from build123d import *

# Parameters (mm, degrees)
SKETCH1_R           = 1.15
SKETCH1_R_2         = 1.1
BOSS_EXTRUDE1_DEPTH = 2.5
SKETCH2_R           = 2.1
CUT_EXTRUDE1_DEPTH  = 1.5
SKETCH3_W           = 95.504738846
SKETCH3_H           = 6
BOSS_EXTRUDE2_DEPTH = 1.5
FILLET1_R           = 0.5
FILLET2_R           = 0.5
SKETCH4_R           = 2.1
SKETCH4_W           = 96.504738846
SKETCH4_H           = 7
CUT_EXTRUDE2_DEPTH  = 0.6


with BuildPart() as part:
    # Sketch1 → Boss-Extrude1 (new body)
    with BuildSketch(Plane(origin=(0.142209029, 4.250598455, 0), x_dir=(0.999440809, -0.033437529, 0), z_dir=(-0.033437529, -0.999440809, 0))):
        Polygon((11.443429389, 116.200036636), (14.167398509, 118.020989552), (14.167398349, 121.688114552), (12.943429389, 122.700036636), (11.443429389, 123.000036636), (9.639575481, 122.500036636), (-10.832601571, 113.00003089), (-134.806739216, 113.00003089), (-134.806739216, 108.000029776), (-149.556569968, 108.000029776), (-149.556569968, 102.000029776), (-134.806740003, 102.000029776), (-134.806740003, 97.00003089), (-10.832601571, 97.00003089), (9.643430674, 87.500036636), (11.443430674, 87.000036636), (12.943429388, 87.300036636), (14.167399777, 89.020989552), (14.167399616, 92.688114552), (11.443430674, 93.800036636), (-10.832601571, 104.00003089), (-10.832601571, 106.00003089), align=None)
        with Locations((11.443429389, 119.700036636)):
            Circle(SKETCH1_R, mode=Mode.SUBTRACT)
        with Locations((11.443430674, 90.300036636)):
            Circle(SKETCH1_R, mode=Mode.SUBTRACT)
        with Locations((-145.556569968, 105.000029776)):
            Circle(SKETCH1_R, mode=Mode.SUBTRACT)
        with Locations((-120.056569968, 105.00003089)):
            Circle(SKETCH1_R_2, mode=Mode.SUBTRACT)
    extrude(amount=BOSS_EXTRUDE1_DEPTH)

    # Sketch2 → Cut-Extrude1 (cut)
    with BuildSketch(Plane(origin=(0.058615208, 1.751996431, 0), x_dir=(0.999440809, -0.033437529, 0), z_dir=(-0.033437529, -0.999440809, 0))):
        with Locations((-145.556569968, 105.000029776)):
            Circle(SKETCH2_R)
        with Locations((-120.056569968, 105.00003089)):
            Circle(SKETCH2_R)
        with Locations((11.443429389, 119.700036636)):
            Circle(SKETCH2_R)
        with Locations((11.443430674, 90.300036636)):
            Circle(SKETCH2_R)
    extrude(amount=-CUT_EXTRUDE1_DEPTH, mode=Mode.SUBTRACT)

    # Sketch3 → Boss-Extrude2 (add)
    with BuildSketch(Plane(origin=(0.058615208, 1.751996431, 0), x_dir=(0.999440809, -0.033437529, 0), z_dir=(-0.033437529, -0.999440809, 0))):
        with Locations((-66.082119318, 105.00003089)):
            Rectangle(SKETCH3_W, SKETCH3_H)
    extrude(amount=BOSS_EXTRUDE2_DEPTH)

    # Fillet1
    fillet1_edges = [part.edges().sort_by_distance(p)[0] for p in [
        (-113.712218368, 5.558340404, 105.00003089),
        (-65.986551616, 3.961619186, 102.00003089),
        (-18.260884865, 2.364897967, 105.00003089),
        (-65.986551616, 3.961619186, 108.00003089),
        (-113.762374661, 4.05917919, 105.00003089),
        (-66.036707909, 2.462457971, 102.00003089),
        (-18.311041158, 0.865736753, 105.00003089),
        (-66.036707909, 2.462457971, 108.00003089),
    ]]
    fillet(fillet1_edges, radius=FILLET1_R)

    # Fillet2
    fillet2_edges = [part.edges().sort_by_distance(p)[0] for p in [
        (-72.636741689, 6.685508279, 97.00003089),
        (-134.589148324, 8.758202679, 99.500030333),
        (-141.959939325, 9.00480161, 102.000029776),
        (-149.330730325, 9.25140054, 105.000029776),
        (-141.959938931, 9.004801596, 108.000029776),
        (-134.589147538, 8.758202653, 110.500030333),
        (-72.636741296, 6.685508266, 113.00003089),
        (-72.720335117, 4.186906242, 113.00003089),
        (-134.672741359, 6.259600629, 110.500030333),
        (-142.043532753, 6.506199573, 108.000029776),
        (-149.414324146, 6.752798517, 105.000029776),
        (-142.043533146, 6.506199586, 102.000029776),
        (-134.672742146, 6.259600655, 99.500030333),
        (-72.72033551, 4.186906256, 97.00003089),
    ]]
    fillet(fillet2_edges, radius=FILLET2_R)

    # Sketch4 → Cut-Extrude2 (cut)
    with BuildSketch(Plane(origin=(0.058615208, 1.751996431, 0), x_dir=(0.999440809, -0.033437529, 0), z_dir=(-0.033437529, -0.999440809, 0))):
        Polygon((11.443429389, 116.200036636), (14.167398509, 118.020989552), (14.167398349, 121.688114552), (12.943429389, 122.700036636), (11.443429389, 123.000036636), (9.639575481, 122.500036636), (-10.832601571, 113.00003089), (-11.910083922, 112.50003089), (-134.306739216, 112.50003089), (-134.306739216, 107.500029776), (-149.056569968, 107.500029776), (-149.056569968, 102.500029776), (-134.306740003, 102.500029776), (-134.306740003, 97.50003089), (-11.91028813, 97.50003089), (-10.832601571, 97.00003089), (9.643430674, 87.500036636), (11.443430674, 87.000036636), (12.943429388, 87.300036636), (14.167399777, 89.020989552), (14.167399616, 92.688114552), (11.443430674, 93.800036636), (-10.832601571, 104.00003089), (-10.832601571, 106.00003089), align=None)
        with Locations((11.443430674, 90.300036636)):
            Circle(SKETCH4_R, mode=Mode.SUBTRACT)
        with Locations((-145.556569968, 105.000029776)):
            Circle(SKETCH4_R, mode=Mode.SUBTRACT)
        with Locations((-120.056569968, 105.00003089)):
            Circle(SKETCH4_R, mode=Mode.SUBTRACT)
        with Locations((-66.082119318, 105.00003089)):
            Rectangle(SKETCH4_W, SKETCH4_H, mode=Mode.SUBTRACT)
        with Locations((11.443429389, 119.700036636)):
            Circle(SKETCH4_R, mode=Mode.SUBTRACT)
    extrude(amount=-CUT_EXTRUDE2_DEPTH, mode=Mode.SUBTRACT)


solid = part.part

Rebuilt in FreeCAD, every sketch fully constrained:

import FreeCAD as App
import Part
import Sketcher

V = App.Vector


def edges_at(feature, points):
    """Names of the edges that pass closest to the given points."""
    edges = feature.Shape.Edges
    near = lambda p: min(range(len(edges)), key=lambda i: edges[i].distToShape(Part.Vertex(*p))[0])
    return sorted({f"Edge{near(p) + 1}" for p in points})

doc = App.newDocument("Part")
params = doc.addObject("Spreadsheet::Sheet", "Params")
for row, (alias, value) in enumerate([
    ("sketch1_diameter", "2.3 mm"),
    ("sketch1_diameter2", "2.2 mm"),
    ("sketch1_height", "5.000001 mm"),
    ("sketch1_height2", "6 mm"),
    ("sketch1_height3", "4.999999 mm"),
    ("pad1_length", "2.5 mm"),
    ("sketch2_diameter", "4.2 mm"),
    ("pocket1_length", "1.5 mm"),
    ("sketch3_height", "6 mm"),
    ("pad2_length", "1.5 mm"),
    ("fillet_radius", "0.5 mm"),
    ("fillet2_radius", "0.5 mm"),
    ("sketch4_diameter", "4.2 mm"),
    ("sketch4_height", "5.000001 mm"),
    ("sketch4_height2", "2 mm"),
    ("sketch4_height3", "7 mm"),
    ("pocket2_length", "0.6 mm"),
], start=1):
    params.set(f"A{row}", alias)
    params.set(f"B{row}", "=" + value)
    params.setAlias(f"B{row}", alias)

body = doc.addObject("PartDesign::Body", "Body")

# Sketch on an angled plane
sketch1 = body.newObject("Sketcher::SketchObject", "Sketch")
sketch1.Placement = App.Placement(V(0.142209, 4.250598, 0), App.Rotation(V(0.999440809, -0.033437529, 0), V(0, 0, 0.999999999), V(-0.033437529, -0.999440809, 0), "ZXY"))
sketch1.addGeometry([
    Part.LineSegment(V(11.4, 116.2, 0), V(14.2, 118, 0)),  # 0
    Part.LineSegment(V(14.2, 118, 0), V(14.2, 121.7, 0)),  # 1
    Part.LineSegment(V(14.2, 121.7, 0), V(12.9, 122.7, 0)),  # 2
    Part.LineSegment(V(12.9, 122.7, 0), V(11.4, 123, 0)),  # 3
    Part.LineSegment(V(11.4, 123, 0), V(9.6, 122.5, 0)),  # 4
    Part.LineSegment(V(9.6, 122.5, 0), V(-10.8, 113, 0)),  # 5
    Part.LineSegment(V(-10.8, 113, 0), V(-134.8, 113, 0)),  # 6
    Part.LineSegment(V(-134.8, 113, 0), V(-134.8, 108, 0)),  # 7
    Part.LineSegment(V(-134.8, 108, 0), V(-149.6, 108, 0)),  # 8
    Part.LineSegment(V(-149.6, 108, 0), V(-149.6, 102, 0)),  # 9
    Part.LineSegment(V(-149.6, 102, 0), V(-134.8, 102, 0)),  # 10
    Part.LineSegment(V(-134.8, 102, 0), V(-134.8, 97, 0)),  # 11
    Part.LineSegment(V(-134.8, 97, 0), V(-10.8, 97, 0)),  # 12
    Part.LineSegment(V(-10.8, 97, 0), V(9.6, 87.5, 0)),  # 13
    Part.LineSegment(V(9.6, 87.5, 0), V(11.4, 87, 0)),  # 14
    Part.LineSegment(V(11.4, 87, 0), V(12.9, 87.3, 0)),  # 15
    Part.LineSegment(V(12.9, 87.3, 0), V(14.2, 89, 0)),  # 16
    Part.LineSegment(V(14.2, 89, 0), V(14.2, 92.7, 0)),  # 17
    Part.LineSegment(V(14.2, 92.7, 0), V(11.4, 93.8, 0)),  # 18
    Part.LineSegment(V(11.4, 93.8, 0), V(-10.8, 104, 0)),  # 19
    Part.LineSegment(V(-10.8, 104, 0), V(-10.8, 106, 0)),  # 20
    Part.LineSegment(V(-10.8, 106, 0), V(11.4, 116.2, 0)),  # 21
    Part.Circle(V(-145.6, 105, 0), V(0, 0, 1), 1.1),  # 22
    Part.Circle(V(-120.1, 105, 0), V(0, 0, 1), 1.1),  # 23
    Part.Circle(V(11.4, 90.3, 0), V(0, 0, 1), 1.1),  # 24
    Part.Circle(V(11.4, 119.7, 0), V(0, 0, 1), 1.1),  # 25
], False)
sketch1.addConstraint([
    Sketcher.Constraint("Coincident", 0, 2, 1, 1),
    Sketcher.Constraint("Coincident", 1, 2, 2, 1),
    Sketcher.Constraint("Coincident", 2, 2, 3, 1),
    Sketcher.Constraint("Coincident", 3, 2, 4, 1),
    Sketcher.Constraint("Coincident", 4, 2, 5, 1),
    Sketcher.Constraint("Coincident", 5, 2, 6, 1),
    Sketcher.Constraint("Coincident", 6, 2, 7, 1),
    Sketcher.Constraint("Coincident", 7, 2, 8, 1),
    Sketcher.Constraint("Coincident", 8, 2, 9, 1),
    Sketcher.Constraint("Coincident", 9, 2, 10, 1),
    Sketcher.Constraint("Coincident", 10, 2, 11, 1),
    Sketcher.Constraint("Coincident", 11, 2, 12, 1),
    Sketcher.Constraint("Coincident", 12, 2, 13, 1),
    Sketcher.Constraint("Coincident", 13, 2, 14, 1),
    Sketcher.Constraint("Coincident", 14, 2, 15, 1),
    Sketcher.Constraint("Coincident", 15, 2, 16, 1),
    Sketcher.Constraint("Coincident", 16, 2, 17, 1),
    Sketcher.Constraint("Coincident", 17, 2, 18, 1),
    Sketcher.Constraint("Coincident", 18, 2, 19, 1),
    Sketcher.Constraint("Coincident", 19, 2, 20, 1),
    Sketcher.Constraint("Coincident", 20, 2, 21, 1),
    Sketcher.Constraint("Coincident", 21, 2, 0, 1),
    Sketcher.Constraint("Vertical", 1),
    Sketcher.Constraint("Horizontal", 6),
    Sketcher.Constraint("Vertical", 7),
    Sketcher.Constraint("Horizontal", 8),
    Sketcher.Constraint("Vertical", 9),
    Sketcher.Constraint("Horizontal", 10),
    Sketcher.Constraint("Vertical", 11),
    Sketcher.Constraint("Horizontal", 12),
    Sketcher.Constraint("Vertical", 17),
    Sketcher.Constraint("Vertical", 20),
    Sketcher.Constraint("Equal", 22, 24),
    Sketcher.Constraint("Equal", 24, 25),
    Sketcher.Constraint("Horizontal", 22, 3, 23, 3),
    Sketcher.Constraint("Vertical", 24, 3, 25, 3),
    Sketcher.Constraint("Vertical", 25, 3, 3, 2),
    Sketcher.Constraint("Vertical", 7, 2, 10, 2),
    Sketcher.Constraint("Vertical", 5, 2, 12, 2),
    Sketcher.Constraint("Vertical", 3, 2, 14, 2),
    Sketcher.Constraint("Vertical", 2, 2, 15, 2),
    Sketcher.Constraint("Vertical", 1, 2, 16, 2),
    Sketcher.Constraint("Vertical", 14, 2, 18, 2),
    Sketcher.Constraint("Vertical", 12, 2, 19, 2),
    Sketcher.Constraint("Vertical", 18, 2, 21, 2),
    Sketcher.Constraint("Equal", 1, 17),
    Sketcher.Constraint("Equal", 3, 15),
    Sketcher.Constraint("Diameter", 22, 2.3),
    Sketcher.Constraint("Diameter", 23, 2.2),
    Sketcher.Constraint("DistanceY", 7, 2, 7, 1, 5.000001),
    Sketcher.Constraint("DistanceY", 9, 2, 9, 1, 6.0),
    Sketcher.Constraint("DistanceY", 11, 2, 11, 1, 4.999999),
    Sketcher.Constraint("DistanceY", 20, 1, 20, 2, 2.0),
    Sketcher.Constraint("DistanceX", 22, 3, 24, 3, 157.0),
    Sketcher.Constraint("DistanceY", 25, 3, 2, 2, 3.0),
    Sketcher.Constraint("DistanceX", 23, 3, 2, 2, 132.999999),
    Sketcher.Constraint("DistanceX", 5, 2, 0, 2, 25.0),
    Sketcher.Constraint("DistanceY", 22, 3, 6, 2, 8.000001),
    Sketcher.Constraint("DistanceX", 8, 2, 22, 3, 4.0),
    Sketcher.Constraint("DistanceY", 15, 2, 24, 3, 3.0),
    Sketcher.Constraint("DistanceY", 12, 2, 19, 2, 7.0),
    Sketcher.Constraint("DistanceX", 22, 3, 23, 3, 25.5),
    Sketcher.Constraint("DistanceY", 24, 3, 25, 3, 29.4),
    Sketcher.Constraint("DistanceY", 2, 2, 3, 2, 0.3),
    Sketcher.Constraint("DistanceY", 4, 2, 3, 2, 0.5),
    Sketcher.Constraint("DistanceX", 13, 2, 24, 3, 1.8),
    Sketcher.Constraint("DistanceY", 13, 2, 24, 3, 2.8),
    Sketcher.Constraint("DistanceY", 24, 3, 18, 2, 3.5),
    Sketcher.Constraint("DistanceY", 21, 2, 25, 3, 3.5),
    Sketcher.Constraint("Distance", 13, 22.572501),
    Sketcher.Constraint("DistanceX", 8, 2, 8, 1, 14.749831),
    Sketcher.Constraint("DistanceX", 12, 1, 12, 2, 123.974138),
    Sketcher.Constraint("DistanceX", -1, 1, 0, 2, 14.167398),
    Sketcher.Constraint("Distance", 5, 22.569008),
    Sketcher.Constraint("Distance", 16, 2.11182),
    Sketcher.Constraint("DistanceY", 1, 1, 1, 2, 3.667125),
    Sketcher.Constraint("DistanceY", -1, 1, 22, 3, 105.00003),
    Sketcher.Constraint("DistanceY", -1, 1, 0, 2, 118.020989),
])
sketch1.setExpression("Constraints[47]", "Params.sketch1_diameter")
sketch1.setExpression("Constraints[48]", "Params.sketch1_diameter2")
sketch1.setExpression("Constraints[49]", "Params.sketch1_height")
sketch1.setExpression("Constraints[50]", "Params.sketch1_height2")
sketch1.setExpression("Constraints[51]", "Params.sketch1_height3")
pad1 = body.newObject("PartDesign::Pad", "Pad")
pad1.Profile = sketch1
pad1.setExpression("Length", "Params.pad1_length")

# Sketch on an angled plane
sketch2 = body.newObject("Sketcher::SketchObject", "Sketch001")
sketch2.Placement = App.Placement(V(0.058615, 1.751996, 0), App.Rotation(V(0.999440809, -0.033437529, 0), V(0, 0, 0.999999999), V(-0.033437529, -0.999440809, 0), "ZXY"))
sketch2.addGeometry([
    Part.Circle(V(-145.6, 105, 0), V(0, 0, 1), 2.1),
    Part.Circle(V(-120.1, 105, 0), V(0, 0, 1), 2.1),
    Part.Circle(V(11.4, 119.7, 0), V(0, 0, 1), 2.1),
    Part.Circle(V(11.4, 90.3, 0), V(0, 0, 1), 2.1),
], False)
sketch2.addConstraint([
    Sketcher.Constraint("Equal", 0, 1),
    Sketcher.Constraint("Equal", 1, 2),
    Sketcher.Constraint("Equal", 2, 3),
    Sketcher.Constraint("Horizontal", 0, 3, 1, 3),
    Sketcher.Constraint("Vertical", 2, 3, 3, 3),
    Sketcher.Constraint("Diameter", 0, 4.2),
    Sketcher.Constraint("DistanceX", 0, 3, 2, 3, 156.999999),
    Sketcher.Constraint("DistanceX", 0, 3, 1, 3, 25.5),
    Sketcher.Constraint("DistanceY", 3, 3, 2, 3, 29.4),
    Sketcher.Constraint("DistanceX", 0, 3, -1, 1, 145.55657),
    Sketcher.Constraint("DistanceY", -1, 1, 0, 3, 105.00003),
    Sketcher.Constraint("DistanceY", -1, 1, 2, 3, 119.700036),
])
sketch2.setExpression("Constraints[5]", "Params.sketch2_diameter")
pocket1 = body.newObject("PartDesign::Pocket", "Pocket")
pocket1.Profile = sketch2
pocket1.setExpression("Length", "Params.pocket1_length")

# Sketch on an angled plane
sketch3 = body.newObject("Sketcher::SketchObject", "Sketch002")
sketch3.Placement = App.Placement(V(0.058615, 1.751996, 0), App.Rotation(V(0.999440809, -0.033437529, 0), V(0, 0, 0.999999999), V(-0.033437529, -0.999440809, 0), "ZXY"))
sketch3.addGeometry([
    Part.LineSegment(V(-114, 108, 0), V(-114, 102, 0)),
    Part.LineSegment(V(-114, 102, 0), V(-18, 102, 0)),
    Part.LineSegment(V(-18, 102, 0), V(-18, 108, 0)),
    Part.LineSegment(V(-18, 108, 0), V(-114, 108, 0)),
], False)
sketch3.addConstraint([
    Sketcher.Constraint("Coincident", 0, 2, 1, 1),
    Sketcher.Constraint("Coincident", 1, 2, 2, 1),
    Sketcher.Constraint("Coincident", 2, 2, 3, 1),
    Sketcher.Constraint("Coincident", 3, 2, 0, 1),
    Sketcher.Constraint("Vertical", 0),
    Sketcher.Constraint("Horizontal", 1),
    Sketcher.Constraint("Vertical", 2),
    Sketcher.Constraint("Horizontal", 3),
    Sketcher.Constraint("DistanceY", 0, 2, 0, 1, 6.0),
    Sketcher.Constraint("DistanceX", 1, 1, 1, 2, 95.504739),
    Sketcher.Constraint("DistanceX", 0, 2, -1, 1, 113.834489),
    Sketcher.Constraint("DistanceY", -1, 1, 0, 2, 102.000031),
])
sketch3.setExpression("Constraints[8]", "Params.sketch3_height")
pad2 = body.newObject("PartDesign::Pad", "Pad001")
pad2.Profile = sketch3
pad2.setExpression("Length", "Params.pad2_length")
doc.recompute()

fillet = body.newObject("PartDesign::Fillet", "Fillet")
fillet.Base = (pad2, edges_at(pad2, [
    (-113.712, 5.558, 105),
    (-65.987, 3.962, 102),
    (-18.261, 2.365, 105),
    (-65.987, 3.962, 108),
    (-113.762, 4.059, 105),
    (-66.037, 2.462, 102),
    (-18.311, 0.866, 105),
    (-66.037, 2.462, 108),
]))
fillet.setExpression("Radius", "Params.fillet_radius")
doc.recompute()

fillet2 = body.newObject("PartDesign::Fillet", "Fillet001")
fillet2.Base = (fillet, edges_at(fillet, [
    (-72.637, 6.686, 97),
    (-134.589, 8.758, 99.5),
    (-141.96, 9.005, 102),
    (-149.331, 9.251, 105),
    (-141.96, 9.005, 108),
    (-134.589, 8.758, 110.5),
    (-72.637, 6.686, 113),
    (-72.72, 4.187, 113),
    (-134.673, 6.26, 110.5),
    (-142.044, 6.506, 108),
    (-149.414, 6.753, 105),
    (-142.044, 6.506, 102),
    (-134.673, 6.26, 99.5),
    (-72.72, 4.187, 97),
]))
fillet2.setExpression("Radius", "Params.fillet2_radius")

# Sketch on an angled plane
sketch4 = body.newObject("Sketcher::SketchObject", "Sketch003")
sketch4.Placement = App.Placement(V(0.058615, 1.751996, 0), App.Rotation(V(0.999440809, -0.033437529, 0), V(0, 0, 0.999999999), V(-0.033437529, -0.999440809, 0), "ZXY"))
sketch4.addGeometry([
    Part.LineSegment(V(11.4, 116.2, 0), V(14.2, 118, 0)),  # 0
    Part.LineSegment(V(14.2, 118, 0), V(14.2, 121.7, 0)),  # 1
    Part.LineSegment(V(14.2, 121.7, 0), V(12.9, 122.7, 0)),  # 2
    Part.LineSegment(V(12.9, 122.7, 0), V(11.4, 123, 0)),  # 3
    Part.LineSegment(V(11.4, 123, 0), V(9.6, 122.5, 0)),  # 4
    Part.LineSegment(V(9.6, 122.5, 0), V(-10.8, 113, 0)),  # 5
    Part.LineSegment(V(-10.8, 113, 0), V(-11.9, 112.5, 0)),  # 6
    Part.LineSegment(V(-11.9, 112.5, 0), V(-134.3, 112.5, 0)),  # 7
    Part.LineSegment(V(-134.3, 112.5, 0), V(-134.3, 107.5, 0)),  # 8
    Part.LineSegment(V(-134.3, 107.5, 0), V(-149.1, 107.5, 0)),  # 9
    Part.LineSegment(V(-149.1, 107.5, 0), V(-149.1, 102.5, 0)),  # 10
    Part.LineSegment(V(-149.1, 102.5, 0), V(-134.3, 102.5, 0)),  # 11
    Part.LineSegment(V(-134.3, 102.5, 0), V(-134.3, 97.5, 0)),  # 12
    Part.LineSegment(V(-134.3, 97.5, 0), V(-11.9, 97.5, 0)),  # 13
    Part.LineSegment(V(-11.9, 97.5, 0), V(-10.8, 97, 0)),  # 14
    Part.LineSegment(V(-10.8, 97, 0), V(9.6, 87.5, 0)),  # 15
    Part.LineSegment(V(9.6, 87.5, 0), V(11.4, 87, 0)),  # 16
    Part.LineSegment(V(11.4, 87, 0), V(12.9, 87.3, 0)),  # 17
    Part.LineSegment(V(12.9, 87.3, 0), V(14.2, 89, 0)),  # 18
    Part.LineSegment(V(14.2, 89, 0), V(14.2, 92.7, 0)),  # 19
    Part.LineSegment(V(14.2, 92.7, 0), V(11.4, 93.8, 0)),  # 20
    Part.LineSegment(V(11.4, 93.8, 0), V(-10.8, 104, 0)),  # 21
    Part.LineSegment(V(-10.8, 104, 0), V(-10.8, 106, 0)),  # 22
    Part.LineSegment(V(-10.8, 106, 0), V(11.4, 116.2, 0)),  # 23
    Part.Circle(V(-145.6, 105, 0), V(0, 0, 1), 2.1),  # 24
    Part.Circle(V(-120.1, 105, 0), V(0, 0, 1), 2.1),  # 25
    Part.Circle(V(11.4, 90.3, 0), V(0, 0, 1), 2.1),  # 26
    Part.LineSegment(V(-17.8, 101.5, 0), V(-114.3, 101.5, 0)),  # 27
    Part.LineSegment(V(-114.3, 101.5, 0), V(-114.3, 108.5, 0)),  # 28
    Part.LineSegment(V(-114.3, 108.5, 0), V(-17.8, 108.5, 0)),  # 29
    Part.LineSegment(V(-17.8, 108.5, 0), V(-17.8, 101.5, 0)),  # 30
    Part.Circle(V(11.4, 119.7, 0), V(0, 0, 1), 2.1),  # 31
], False)
sketch4.addConstraint([
    Sketcher.Constraint("Coincident", 0, 2, 1, 1),
    Sketcher.Constraint("Coincident", 1, 2, 2, 1),
    Sketcher.Constraint("Coincident", 2, 2, 3, 1),
    Sketcher.Constraint("Coincident", 3, 2, 4, 1),
    Sketcher.Constraint("Coincident", 4, 2, 5, 1),
    Sketcher.Constraint("Coincident", 5, 2, 6, 1),
    Sketcher.Constraint("Coincident", 6, 2, 7, 1),
    Sketcher.Constraint("Coincident", 7, 2, 8, 1),
    Sketcher.Constraint("Coincident", 8, 2, 9, 1),
    Sketcher.Constraint("Coincident", 9, 2, 10, 1),
    Sketcher.Constraint("Coincident", 10, 2, 11, 1),
    Sketcher.Constraint("Coincident", 11, 2, 12, 1),
    Sketcher.Constraint("Coincident", 12, 2, 13, 1),
    Sketcher.Constraint("Coincident", 13, 2, 14, 1),
    Sketcher.Constraint("Coincident", 14, 2, 15, 1),
    Sketcher.Constraint("Coincident", 15, 2, 16, 1),
    Sketcher.Constraint("Coincident", 16, 2, 17, 1),
    Sketcher.Constraint("Coincident", 17, 2, 18, 1),
    Sketcher.Constraint("Coincident", 18, 2, 19, 1),
    Sketcher.Constraint("Coincident", 19, 2, 20, 1),
    Sketcher.Constraint("Coincident", 20, 2, 21, 1),
    Sketcher.Constraint("Coincident", 21, 2, 22, 1),
    Sketcher.Constraint("Coincident", 22, 2, 23, 1),
    Sketcher.Constraint("Coincident", 23, 2, 0, 1),
    Sketcher.Constraint("Coincident", 27, 2, 28, 1),
    Sketcher.Constraint("Coincident", 28, 2, 29, 1),
    Sketcher.Constraint("Coincident", 29, 2, 30, 1),
    Sketcher.Constraint("Coincident", 30, 2, 27, 1),
    Sketcher.Constraint("Vertical", 1),
    Sketcher.Constraint("Horizontal", 7),
    Sketcher.Constraint("Vertical", 8),
    Sketcher.Constraint("Horizontal", 9),
    Sketcher.Constraint("Vertical", 10),
    Sketcher.Constraint("Horizontal", 11),
    Sketcher.Constraint("Vertical", 12),
    Sketcher.Constraint("Horizontal", 13),
    Sketcher.Constraint("Vertical", 19),
    Sketcher.Constraint("Vertical", 22),
    Sketcher.Constraint("Horizontal", 27),
    Sketcher.Constraint("Vertical", 28),
    Sketcher.Constraint("Horizontal", 29),
    Sketcher.Constraint("Vertical", 30),
    Sketcher.Constraint("Equal", 24, 25),
    Sketcher.Constraint("Equal", 25, 26),
    Sketcher.Constraint("Equal", 26, 31),
    Sketcher.Constraint("Parallel", 5, 6),
    Sketcher.Constraint("Parallel", 14, 15),
    Sketcher.Constraint("Horizontal", 24, 3, 25, 3),
    Sketcher.Constraint("Vertical", 26, 3, 31, 3),
    Sketcher.Constraint("Vertical", 31, 3, 3, 2),
    Sketcher.Constraint("Vertical", 8, 2, 11, 2),
    Sketcher.Constraint("Vertical", 5, 2, 14, 2),
    Sketcher.Constraint("Vertical", 3, 2, 16, 2),
    Sketcher.Constraint("Vertical", 2, 2, 17, 2),
    Sketcher.Constraint("Vertical", 1, 2, 18, 2),
    Sketcher.Constraint("Vertical", 16, 2, 20, 2),
    Sketcher.Constraint("Vertical", 14, 2, 21, 2),
    Sketcher.Constraint("Vertical", 20, 2, 23, 2),
    Sketcher.Constraint("Equal", 8, 10),
    Sketcher.Constraint("Equal", 10, 12),
    Sketcher.Constraint("Equal", 1, 19),
    Sketcher.Constraint("Equal", 3, 17),
    Sketcher.Constraint("Diameter", 24, 4.2),
    Sketcher.Constraint("DistanceY", 8, 2, 8, 1, 5.000001),
    Sketcher.Constraint("DistanceY", 22, 1, 22, 2, 2.0),
    Sketcher.Constraint("DistanceY", 28, 1, 28, 2, 7.0),
    Sketcher.Constraint("DistanceX", 24, 3, 26, 3, 157.0),
    Sketcher.Constraint("DistanceY", 31, 3, 2, 2, 3.0),
    Sketcher.Constraint("DistanceX", 25, 3, 2, 2, 132.999999),
    Sketcher.Constraint("DistanceX", 5, 2, 0, 2, 25.0),
    Sketcher.Constraint("DistanceX", 9, 2, 25, 3, 29.0),
    Sketcher.Constraint("DistanceY", 14, 2, 5, 2, 16.0),
    Sketcher.Constraint("DistanceY", 17, 2, 26, 3, 3.0),
    Sketcher.Constraint("DistanceY", 14, 2, 21, 2, 7.0),
    Sketcher.Constraint("DistanceY", 27, 2, 11, 2, 0.999999),
    Sketcher.Constraint("DistanceX", 24, 3, 25, 3, 25.5),
    Sketcher.Constraint("DistanceY", 26, 3, 31, 3, 29.4),
    Sketcher.Constraint("DistanceY", 2, 2, 3, 2, 0.3),
    Sketcher.Constraint("DistanceY", 4, 2, 3, 2, 0.5),
    Sketcher.Constraint("DistanceY", 6, 2, 5, 2, 0.5),
    Sketcher.Constraint("DistanceY", 24, 3, 7, 2, 7.500001),
    Sketcher.Constraint("DistanceX", 15, 2, 26, 3, 1.8),
    Sketcher.Constraint("DistanceY", 15, 2, 26, 3, 2.8),
    Sketcher.Constraint("DistanceY", 26, 3, 20, 2, 3.5),
    Sketcher.Constraint("DistanceY", 23, 2, 31, 3, 3.5),
    Sketcher.Constraint("Distance", 15, 22.572501),
    Sketcher.Constraint("DistanceX", 9, 2, 9, 1, 14.749831),
    Sketcher.Constraint("DistanceX", 13, 1, 13, 2, 122.396452),
    Sketcher.Constraint("DistanceX", 27, 2, 27, 1, 96.504739),
    Sketcher.Constraint("DistanceX", -1, 1, 0, 2, 14.167398),
    Sketcher.Constraint("Distance", 5, 22.569008),
    Sketcher.Constraint("Distance", 18, 2.11182),
    Sketcher.Constraint("DistanceY", 1, 1, 1, 2, 3.667125),
    Sketcher.Constraint("DistanceY", -1, 1, 24, 3, 105.00003),
    Sketcher.Constraint("DistanceY", -1, 1, 0, 2, 118.020989),
    Sketcher.Constraint("DistanceX", 27, 2, -1, 1, 114.334489),
])
sketch4.setExpression("Constraints[62]", "Params.sketch4_diameter")
sketch4.setExpression("Constraints[63]", "Params.sketch4_height")
sketch4.setExpression("Constraints[64]", "Params.sketch4_height2")
sketch4.setExpression("Constraints[65]", "Params.sketch4_height3")
pocket2 = body.newObject("PartDesign::Pocket", "Pocket001")
pocket2.Profile = sketch4
pocket2.setExpression("Length", "Params.pocket2_length")

doc.recompute()
